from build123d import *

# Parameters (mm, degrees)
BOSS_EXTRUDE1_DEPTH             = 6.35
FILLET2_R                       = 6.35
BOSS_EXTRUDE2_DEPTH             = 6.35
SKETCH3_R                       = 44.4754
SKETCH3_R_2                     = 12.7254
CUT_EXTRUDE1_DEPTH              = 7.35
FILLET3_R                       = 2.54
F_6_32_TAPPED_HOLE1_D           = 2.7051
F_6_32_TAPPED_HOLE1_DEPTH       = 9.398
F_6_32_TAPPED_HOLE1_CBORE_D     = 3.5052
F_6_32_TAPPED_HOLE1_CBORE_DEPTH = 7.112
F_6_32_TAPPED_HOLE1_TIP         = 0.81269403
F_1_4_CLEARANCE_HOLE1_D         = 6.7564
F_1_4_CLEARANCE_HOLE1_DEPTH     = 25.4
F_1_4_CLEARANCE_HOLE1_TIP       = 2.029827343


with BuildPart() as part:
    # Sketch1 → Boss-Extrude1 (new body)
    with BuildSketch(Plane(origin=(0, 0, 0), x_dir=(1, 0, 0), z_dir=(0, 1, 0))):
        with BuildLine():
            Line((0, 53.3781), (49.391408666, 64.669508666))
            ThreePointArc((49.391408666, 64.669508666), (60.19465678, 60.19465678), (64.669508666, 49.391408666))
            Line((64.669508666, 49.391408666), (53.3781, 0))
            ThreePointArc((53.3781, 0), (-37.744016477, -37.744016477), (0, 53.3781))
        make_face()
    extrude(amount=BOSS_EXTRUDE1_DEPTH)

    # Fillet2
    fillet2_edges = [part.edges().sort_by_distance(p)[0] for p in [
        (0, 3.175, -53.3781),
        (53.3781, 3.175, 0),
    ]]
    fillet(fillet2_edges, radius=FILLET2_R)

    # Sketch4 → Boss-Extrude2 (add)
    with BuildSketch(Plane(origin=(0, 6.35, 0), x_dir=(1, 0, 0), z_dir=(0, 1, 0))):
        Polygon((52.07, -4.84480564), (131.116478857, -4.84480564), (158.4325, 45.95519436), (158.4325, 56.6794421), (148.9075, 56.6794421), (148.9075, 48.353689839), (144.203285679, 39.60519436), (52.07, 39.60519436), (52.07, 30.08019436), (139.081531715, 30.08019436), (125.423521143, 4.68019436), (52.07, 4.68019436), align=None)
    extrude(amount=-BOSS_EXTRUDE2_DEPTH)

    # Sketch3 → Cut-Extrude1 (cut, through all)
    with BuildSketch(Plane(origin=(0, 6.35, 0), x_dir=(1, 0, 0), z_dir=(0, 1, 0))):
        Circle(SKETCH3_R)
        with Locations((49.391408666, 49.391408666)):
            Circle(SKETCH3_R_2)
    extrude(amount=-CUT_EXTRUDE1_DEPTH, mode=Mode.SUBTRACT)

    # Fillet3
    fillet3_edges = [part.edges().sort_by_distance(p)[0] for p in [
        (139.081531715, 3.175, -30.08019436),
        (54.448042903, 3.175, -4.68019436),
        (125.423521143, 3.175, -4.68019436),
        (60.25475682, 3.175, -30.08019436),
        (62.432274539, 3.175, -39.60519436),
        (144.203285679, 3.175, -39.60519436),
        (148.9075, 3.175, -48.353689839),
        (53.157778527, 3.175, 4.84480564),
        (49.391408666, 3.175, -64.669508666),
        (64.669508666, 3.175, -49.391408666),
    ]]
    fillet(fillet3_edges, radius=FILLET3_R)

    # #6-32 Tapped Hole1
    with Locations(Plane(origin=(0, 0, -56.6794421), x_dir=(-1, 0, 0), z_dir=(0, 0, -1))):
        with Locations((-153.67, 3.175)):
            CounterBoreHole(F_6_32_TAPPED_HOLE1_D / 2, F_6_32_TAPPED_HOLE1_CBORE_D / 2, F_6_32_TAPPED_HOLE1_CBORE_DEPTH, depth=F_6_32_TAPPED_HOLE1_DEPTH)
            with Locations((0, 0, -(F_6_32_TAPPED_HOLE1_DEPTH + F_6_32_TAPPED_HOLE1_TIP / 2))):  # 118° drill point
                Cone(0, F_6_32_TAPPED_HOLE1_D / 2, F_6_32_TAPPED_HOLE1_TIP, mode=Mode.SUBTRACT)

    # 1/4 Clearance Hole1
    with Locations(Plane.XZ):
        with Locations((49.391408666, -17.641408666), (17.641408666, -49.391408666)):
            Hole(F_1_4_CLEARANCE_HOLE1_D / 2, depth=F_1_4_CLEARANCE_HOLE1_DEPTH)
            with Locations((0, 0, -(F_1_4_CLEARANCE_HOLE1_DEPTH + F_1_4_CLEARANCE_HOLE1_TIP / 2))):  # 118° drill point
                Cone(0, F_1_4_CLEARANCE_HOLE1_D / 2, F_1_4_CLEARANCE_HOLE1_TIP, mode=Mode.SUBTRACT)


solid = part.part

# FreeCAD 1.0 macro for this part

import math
import FreeCAD as App
import Part
import Sketcher
from FreeCAD import Vector
Q = App.Units.Quantity


def edges_at(feature, points):
    """Names of the edges that pass closest to the given points."""
    edges = feature.Shape.Edges
    near = lambda p: min(range(len(edges)), key=lambda i: edges[i].distToShape(Part.Vertex(*p))[0])
    return sorted({f"Edge{near(p) + 1}" for p in points})


def add_polygon(sketch, points):
    """Adds a closed chain of lines whose ends are joined by coincident constraints."""
    first, n = sketch.GeometryCount, len(points)
    for a, b in zip(points, points[1:] + points[:1]):
        sketch.addGeometry(Part.LineSegment(App.Vector(*a, 0), App.Vector(*b, 0)), False)
    for i in range(n):
        sketch.addConstraint(Sketcher.Constraint("Coincident", first + i, 2, first + (i + 1) % n, 1))

doc = App.newDocument("Part")
body = doc.addObject("PartDesign::Body", "Body")

sketch1 = body.newObject("Sketcher::SketchObject", "Sketch")
sketch1.AttachmentSupport = (doc.getObject("XZ_Plane"), [""])
sketch1.MapMode = "FlatFace"
sketch1.addGeometry(Part.LineSegment(Vector(49, -65, 0), Vector(0, -53, 0)), False)
sketch1.addGeometry(Part.ArcOfCircle(Part.Circle(Vector(0, 0, 0), Vector(0, 0, 1), 53), math.radians(0), math.radians(270)), False)
sketch1.addGeometry(Part.LineSegment(Vector(53, 0, 0), Vector(65, -49, 0)), False)
sketch1.addGeometry(Part.ArcOfCircle(Part.Circle(Vector(49, -49, 0), Vector(0, 0, 1), 15), math.radians(-90), math.radians(0)), False)
sketch1.addConstraint(Sketcher.Constraint("Coincident", 0, 2, 1, 2))
sketch1.addConstraint(Sketcher.Constraint("Coincident", 1, 1, 2, 1))
sketch1.addConstraint(Sketcher.Constraint("Coincident", 2, 2, 3, 2))
sketch1.addConstraint(Sketcher.Constraint("Coincident", 3, 1, 0, 1))
sketch1.addConstraint(Sketcher.Constraint("Coincident", 1, 3, -1, 1))
sketch1.addConstraint(Sketcher.Constraint("PointOnObject", 0, 2, -2))
sketch1.addConstraint(Sketcher.Constraint("PointOnObject", 1, 1, -1))
sketch1.addConstraint(Sketcher.Constraint("Horizontal", 3, 3, 2, 2))
sketch1.addConstraint(Sketcher.Constraint("Equal", 0, 2))
sketch1.addConstraint(Sketcher.Constraint("Radius", 1, Q("2.1015 in")))
sketch1.addConstraint(Sketcher.Constraint("Radius", 3, Q("0.6015 in")))
sketch1.addConstraint(Sketcher.Constraint("DistanceX", 3, 1, 2, 2, Q("0.6015 in")))
sketch1.addConstraint(Sketcher.Constraint("Distance", 0, 50.665641))
pad1 = body.newObject("PartDesign::Pad", "Pad")
pad1.Profile = sketch1
pad1.Length = Q("0.25 in")
pad1.Reversed = True
doc.recompute()

fillet = body.newObject("PartDesign::Fillet", "Fillet")
fillet.Base = (pad1, edges_at(pad1, [(0, 3.175, -53.378), (53.378, 3.175, 0)]))
fillet.Radius = Q("0.25 in")

sketch2 = body.newObject("Sketcher::SketchObject", "Sketch001")
sketch2.AttachmentSupport = (doc.getObject("XZ_Plane"), [""])
sketch2.MapMode = "FlatFace"
sketch2.AttachmentOffset = App.Placement(Vector(0, 0, -0.25 * 25.4), App.Rotation())
add_polygon(sketch2, [(52, 5), (131, 5), (158, -46), (158, -57), (149, -57), (149, -48), (144, -40), (52, -40), (52, -30), (139, -30), (125, -5), (52, -5)])
sketch2.addConstraint(Sketcher.Constraint("Horizontal", 0))
sketch2.addConstraint(Sketcher.Constraint("Vertical", 2))
sketch2.addConstraint(Sketcher.Constraint("Horizontal", 3))
sketch2.addConstraint(Sketcher.Constraint("Vertical", 4))
sketch2.addConstraint(Sketcher.Constraint("Horizontal", 6))
sketch2.addConstraint(Sketcher.Constraint("Vertical", 7))
sketch2.addConstraint(Sketcher.Constraint("Horizontal", 8))
sketch2.addConstraint(Sketcher.Constraint("Horizontal", 10))
sketch2.addConstraint(Sketcher.Constraint("Vertical", 11))
sketch2.addConstraint(Sketcher.Constraint("Parallel", 1, 5))
sketch2.addConstraint(Sketcher.Constraint("Parallel", 5, 9))
sketch2.addConstraint(Sketcher.Constraint("Vertical", 7, 2, 10, 2))
sketch2.addConstraint(Sketcher.Constraint("Equal", 3, 7))
sketch2.addConstraint(Sketcher.Constraint("Equal", 7, 11))
sketch2.addConstraint(Sketcher.Constraint("DistanceY", 1, 2, 0, 2, Q("2 in")))
sketch2.addConstraint(Sketcher.Constraint("DistanceY", 8, 2, 9, 2, Q("1 in")))
sketch2.addConstraint(Sketcher.Constraint("DistanceX", 3, 2, 3, 1, Q("0.375 in")))
sketch2.addConstraint(Sketcher.Constraint("DistanceX", -1, 1, 6, 2, Q("2.05 in")))
sketch2.addConstraint(Sketcher.Constraint("DistanceX", 6, 2, 4, 2, Q("3.8125 in")))
sketch2.addConstraint(Sketcher.Constraint("DistanceX", 0, 1, 0, 2, 79.046479))
sketch2.addConstraint(Sketcher.Constraint("DistanceX", 8, 1, 8, 2, 87.011532))
sketch2.addConstraint(Sketcher.Constraint("DistanceX", 6, 2, 6, 1, 92.133286))
sketch2.addConstraint(Sketcher.Constraint("DistanceY", 2, 2, 2, 1, 10.724248))
sketch2.addConstraint(Sketcher.Constraint("DistanceY", 4, 2, -1, 1, 48.35369))
pad2 = body.newObject("PartDesign::Pad", "Pad001")
pad2.Profile = sketch2
pad2.Length = Q("0.25 in")

sketch3 = body.newObject("Sketcher::SketchObject", "Sketch002")
sketch3.AttachmentSupport = (doc.getObject("XZ_Plane"), [""])
sketch3.MapMode = "FlatFace"
sketch3.AttachmentOffset = App.Placement(Vector(0, 0, -0.25 * 25.4), App.Rotation())
sketch3.addGeometry(Part.Circle(Vector(0, 0, 0), Vector(0, 0, 1), 44), False)
sketch3.addGeometry(Part.Circle(Vector(49, -49, 0), Vector(0, 0, 1), 13), False)
sketch3.addConstraint(Sketcher.Constraint("Coincident", 0, 3, -1, 1))
sketch3.addConstraint(Sketcher.Constraint("Diameter", 0, Q("3.502 in")))
sketch3.addConstraint(Sketcher.Constraint("Diameter", 1, Q("1.002 in")))
sketch3.addConstraint(Sketcher.Constraint("DistanceX", -1, 1, 1, 3, 49.391409))
sketch3.addConstraint(Sketcher.Constraint("DistanceY", 1, 3, -1, 1, 49.391409))
pocket1 = body.newObject("PartDesign::Pocket", "Pocket")
pocket1.Profile = sketch3
pocket1.Type = "ThroughAll"
pocket1.Reversed = True
doc.recompute()

fillet2 = body.newObject("PartDesign::Fillet", "Fillet001")
fillet2.Base = (pocket1, edges_at(pocket1, [
    (139.082, 3.175, -30.08),
    (54.448, 3.175, -4.68),
    (125.424, 3.175, -4.68),
    (60.255, 3.175, -30.08),
    (62.432, 3.175, -39.605),
    (144.203, 3.175, -39.605),
    (148.907, 3.175, -48.354),
    (53.158, 3.175, 4.845),
    (49.391, 3.175, -64.67),
    (64.67, 3.175, -49.391),
]))
fillet2.Radius = Q("0.1 in")

sketch4 = body.newObject("Sketcher::SketchObject", "Sketch003")
sketch4.AttachmentSupport = (doc.getObject("XY_Plane"), [""])
sketch4.MapMode = "FlatFace"
sketch4.AttachmentOffset = App.Placement(Vector(0, 0, -56.679442), App.Rotation())
sketch4.addGeometry(Part.Circle(Vector(153.7, 3.2, 0), Vector(0, 0, 1), 1.4), False)
sketch4.addConstraint(Sketcher.Constraint("Diameter", 0, Q("0.1065 in")))
sketch4.addConstraint(Sketcher.Constraint("DistanceX", -1, 1, 0, 3, Q("6.05 in")))
sketch4.addConstraint(Sketcher.Constraint("DistanceY", -1, 1, 0, 3, Q("0.125 in")))
doc.recompute()
hole = body.newObject("PartDesign::Hole", "Hole")
hole.Profile = sketch4
hole.ThreadType = "None"
hole.Diameter = Q("0.1065 in")
hole.DepthType = "Dimension"
hole.Depth = Q("0.37 in")
hole.DrillPoint = "Angled"
hole.DrillPointAngle = 118
hole.HoleCutType = "Counterbore"
hole.HoleCutDiameter = Q("0.138 in")
hole.HoleCutDepth = Q("0.28 in")
hole.Reversed = True

sketch5 = body.newObject("Sketcher::SketchObject", "Sketch004")
sketch5.AttachmentSupport = (doc.getObject("XZ_Plane"), [""])
sketch5.MapMode = "FlatFace"
sketch5.addGeometry(Part.Circle(Vector(49.4, -17.6, 0), Vector(0, 0, 1), 3.4), False)
sketch5.addGeometry(Part.Circle(Vector(17.6, -49.4, 0), Vector(0, 0, 1), 3.4), False)
sketch5.addConstraint(Sketcher.Constraint("Equal", 0, 1))
sketch5.addConstraint(Sketcher.Constraint("Diameter", 0, Q("0.266 in")))
sketch5.addConstraint(Sketcher.Constraint("DistanceX", 1, 3, 0, 3, Q("1.25 in")))
sketch5.addConstraint(Sketcher.Constraint("DistanceY", 1, 3, 0, 3, Q("1.25 in")))
sketch5.addConstraint(Sketcher.Constraint("DistanceX", -1, 1, 0, 3, 49.391409))
sketch5.addConstraint(Sketcher.Constraint("DistanceY", 0, 3, -1, 1, 17.641409))
doc.recompute()
hole2 = body.newObject("PartDesign::Hole", "Hole001")
hole2.Profile = sketch5
hole2.ThreadType = "None"
hole2.Diameter = Q("0.266 in")
hole2.DepthType = "Dimension"
hole2.Depth = Q("1 in")
hole2.DrillPoint = "Angled"
hole2.DrillPointAngle = 118

doc.recompute()
